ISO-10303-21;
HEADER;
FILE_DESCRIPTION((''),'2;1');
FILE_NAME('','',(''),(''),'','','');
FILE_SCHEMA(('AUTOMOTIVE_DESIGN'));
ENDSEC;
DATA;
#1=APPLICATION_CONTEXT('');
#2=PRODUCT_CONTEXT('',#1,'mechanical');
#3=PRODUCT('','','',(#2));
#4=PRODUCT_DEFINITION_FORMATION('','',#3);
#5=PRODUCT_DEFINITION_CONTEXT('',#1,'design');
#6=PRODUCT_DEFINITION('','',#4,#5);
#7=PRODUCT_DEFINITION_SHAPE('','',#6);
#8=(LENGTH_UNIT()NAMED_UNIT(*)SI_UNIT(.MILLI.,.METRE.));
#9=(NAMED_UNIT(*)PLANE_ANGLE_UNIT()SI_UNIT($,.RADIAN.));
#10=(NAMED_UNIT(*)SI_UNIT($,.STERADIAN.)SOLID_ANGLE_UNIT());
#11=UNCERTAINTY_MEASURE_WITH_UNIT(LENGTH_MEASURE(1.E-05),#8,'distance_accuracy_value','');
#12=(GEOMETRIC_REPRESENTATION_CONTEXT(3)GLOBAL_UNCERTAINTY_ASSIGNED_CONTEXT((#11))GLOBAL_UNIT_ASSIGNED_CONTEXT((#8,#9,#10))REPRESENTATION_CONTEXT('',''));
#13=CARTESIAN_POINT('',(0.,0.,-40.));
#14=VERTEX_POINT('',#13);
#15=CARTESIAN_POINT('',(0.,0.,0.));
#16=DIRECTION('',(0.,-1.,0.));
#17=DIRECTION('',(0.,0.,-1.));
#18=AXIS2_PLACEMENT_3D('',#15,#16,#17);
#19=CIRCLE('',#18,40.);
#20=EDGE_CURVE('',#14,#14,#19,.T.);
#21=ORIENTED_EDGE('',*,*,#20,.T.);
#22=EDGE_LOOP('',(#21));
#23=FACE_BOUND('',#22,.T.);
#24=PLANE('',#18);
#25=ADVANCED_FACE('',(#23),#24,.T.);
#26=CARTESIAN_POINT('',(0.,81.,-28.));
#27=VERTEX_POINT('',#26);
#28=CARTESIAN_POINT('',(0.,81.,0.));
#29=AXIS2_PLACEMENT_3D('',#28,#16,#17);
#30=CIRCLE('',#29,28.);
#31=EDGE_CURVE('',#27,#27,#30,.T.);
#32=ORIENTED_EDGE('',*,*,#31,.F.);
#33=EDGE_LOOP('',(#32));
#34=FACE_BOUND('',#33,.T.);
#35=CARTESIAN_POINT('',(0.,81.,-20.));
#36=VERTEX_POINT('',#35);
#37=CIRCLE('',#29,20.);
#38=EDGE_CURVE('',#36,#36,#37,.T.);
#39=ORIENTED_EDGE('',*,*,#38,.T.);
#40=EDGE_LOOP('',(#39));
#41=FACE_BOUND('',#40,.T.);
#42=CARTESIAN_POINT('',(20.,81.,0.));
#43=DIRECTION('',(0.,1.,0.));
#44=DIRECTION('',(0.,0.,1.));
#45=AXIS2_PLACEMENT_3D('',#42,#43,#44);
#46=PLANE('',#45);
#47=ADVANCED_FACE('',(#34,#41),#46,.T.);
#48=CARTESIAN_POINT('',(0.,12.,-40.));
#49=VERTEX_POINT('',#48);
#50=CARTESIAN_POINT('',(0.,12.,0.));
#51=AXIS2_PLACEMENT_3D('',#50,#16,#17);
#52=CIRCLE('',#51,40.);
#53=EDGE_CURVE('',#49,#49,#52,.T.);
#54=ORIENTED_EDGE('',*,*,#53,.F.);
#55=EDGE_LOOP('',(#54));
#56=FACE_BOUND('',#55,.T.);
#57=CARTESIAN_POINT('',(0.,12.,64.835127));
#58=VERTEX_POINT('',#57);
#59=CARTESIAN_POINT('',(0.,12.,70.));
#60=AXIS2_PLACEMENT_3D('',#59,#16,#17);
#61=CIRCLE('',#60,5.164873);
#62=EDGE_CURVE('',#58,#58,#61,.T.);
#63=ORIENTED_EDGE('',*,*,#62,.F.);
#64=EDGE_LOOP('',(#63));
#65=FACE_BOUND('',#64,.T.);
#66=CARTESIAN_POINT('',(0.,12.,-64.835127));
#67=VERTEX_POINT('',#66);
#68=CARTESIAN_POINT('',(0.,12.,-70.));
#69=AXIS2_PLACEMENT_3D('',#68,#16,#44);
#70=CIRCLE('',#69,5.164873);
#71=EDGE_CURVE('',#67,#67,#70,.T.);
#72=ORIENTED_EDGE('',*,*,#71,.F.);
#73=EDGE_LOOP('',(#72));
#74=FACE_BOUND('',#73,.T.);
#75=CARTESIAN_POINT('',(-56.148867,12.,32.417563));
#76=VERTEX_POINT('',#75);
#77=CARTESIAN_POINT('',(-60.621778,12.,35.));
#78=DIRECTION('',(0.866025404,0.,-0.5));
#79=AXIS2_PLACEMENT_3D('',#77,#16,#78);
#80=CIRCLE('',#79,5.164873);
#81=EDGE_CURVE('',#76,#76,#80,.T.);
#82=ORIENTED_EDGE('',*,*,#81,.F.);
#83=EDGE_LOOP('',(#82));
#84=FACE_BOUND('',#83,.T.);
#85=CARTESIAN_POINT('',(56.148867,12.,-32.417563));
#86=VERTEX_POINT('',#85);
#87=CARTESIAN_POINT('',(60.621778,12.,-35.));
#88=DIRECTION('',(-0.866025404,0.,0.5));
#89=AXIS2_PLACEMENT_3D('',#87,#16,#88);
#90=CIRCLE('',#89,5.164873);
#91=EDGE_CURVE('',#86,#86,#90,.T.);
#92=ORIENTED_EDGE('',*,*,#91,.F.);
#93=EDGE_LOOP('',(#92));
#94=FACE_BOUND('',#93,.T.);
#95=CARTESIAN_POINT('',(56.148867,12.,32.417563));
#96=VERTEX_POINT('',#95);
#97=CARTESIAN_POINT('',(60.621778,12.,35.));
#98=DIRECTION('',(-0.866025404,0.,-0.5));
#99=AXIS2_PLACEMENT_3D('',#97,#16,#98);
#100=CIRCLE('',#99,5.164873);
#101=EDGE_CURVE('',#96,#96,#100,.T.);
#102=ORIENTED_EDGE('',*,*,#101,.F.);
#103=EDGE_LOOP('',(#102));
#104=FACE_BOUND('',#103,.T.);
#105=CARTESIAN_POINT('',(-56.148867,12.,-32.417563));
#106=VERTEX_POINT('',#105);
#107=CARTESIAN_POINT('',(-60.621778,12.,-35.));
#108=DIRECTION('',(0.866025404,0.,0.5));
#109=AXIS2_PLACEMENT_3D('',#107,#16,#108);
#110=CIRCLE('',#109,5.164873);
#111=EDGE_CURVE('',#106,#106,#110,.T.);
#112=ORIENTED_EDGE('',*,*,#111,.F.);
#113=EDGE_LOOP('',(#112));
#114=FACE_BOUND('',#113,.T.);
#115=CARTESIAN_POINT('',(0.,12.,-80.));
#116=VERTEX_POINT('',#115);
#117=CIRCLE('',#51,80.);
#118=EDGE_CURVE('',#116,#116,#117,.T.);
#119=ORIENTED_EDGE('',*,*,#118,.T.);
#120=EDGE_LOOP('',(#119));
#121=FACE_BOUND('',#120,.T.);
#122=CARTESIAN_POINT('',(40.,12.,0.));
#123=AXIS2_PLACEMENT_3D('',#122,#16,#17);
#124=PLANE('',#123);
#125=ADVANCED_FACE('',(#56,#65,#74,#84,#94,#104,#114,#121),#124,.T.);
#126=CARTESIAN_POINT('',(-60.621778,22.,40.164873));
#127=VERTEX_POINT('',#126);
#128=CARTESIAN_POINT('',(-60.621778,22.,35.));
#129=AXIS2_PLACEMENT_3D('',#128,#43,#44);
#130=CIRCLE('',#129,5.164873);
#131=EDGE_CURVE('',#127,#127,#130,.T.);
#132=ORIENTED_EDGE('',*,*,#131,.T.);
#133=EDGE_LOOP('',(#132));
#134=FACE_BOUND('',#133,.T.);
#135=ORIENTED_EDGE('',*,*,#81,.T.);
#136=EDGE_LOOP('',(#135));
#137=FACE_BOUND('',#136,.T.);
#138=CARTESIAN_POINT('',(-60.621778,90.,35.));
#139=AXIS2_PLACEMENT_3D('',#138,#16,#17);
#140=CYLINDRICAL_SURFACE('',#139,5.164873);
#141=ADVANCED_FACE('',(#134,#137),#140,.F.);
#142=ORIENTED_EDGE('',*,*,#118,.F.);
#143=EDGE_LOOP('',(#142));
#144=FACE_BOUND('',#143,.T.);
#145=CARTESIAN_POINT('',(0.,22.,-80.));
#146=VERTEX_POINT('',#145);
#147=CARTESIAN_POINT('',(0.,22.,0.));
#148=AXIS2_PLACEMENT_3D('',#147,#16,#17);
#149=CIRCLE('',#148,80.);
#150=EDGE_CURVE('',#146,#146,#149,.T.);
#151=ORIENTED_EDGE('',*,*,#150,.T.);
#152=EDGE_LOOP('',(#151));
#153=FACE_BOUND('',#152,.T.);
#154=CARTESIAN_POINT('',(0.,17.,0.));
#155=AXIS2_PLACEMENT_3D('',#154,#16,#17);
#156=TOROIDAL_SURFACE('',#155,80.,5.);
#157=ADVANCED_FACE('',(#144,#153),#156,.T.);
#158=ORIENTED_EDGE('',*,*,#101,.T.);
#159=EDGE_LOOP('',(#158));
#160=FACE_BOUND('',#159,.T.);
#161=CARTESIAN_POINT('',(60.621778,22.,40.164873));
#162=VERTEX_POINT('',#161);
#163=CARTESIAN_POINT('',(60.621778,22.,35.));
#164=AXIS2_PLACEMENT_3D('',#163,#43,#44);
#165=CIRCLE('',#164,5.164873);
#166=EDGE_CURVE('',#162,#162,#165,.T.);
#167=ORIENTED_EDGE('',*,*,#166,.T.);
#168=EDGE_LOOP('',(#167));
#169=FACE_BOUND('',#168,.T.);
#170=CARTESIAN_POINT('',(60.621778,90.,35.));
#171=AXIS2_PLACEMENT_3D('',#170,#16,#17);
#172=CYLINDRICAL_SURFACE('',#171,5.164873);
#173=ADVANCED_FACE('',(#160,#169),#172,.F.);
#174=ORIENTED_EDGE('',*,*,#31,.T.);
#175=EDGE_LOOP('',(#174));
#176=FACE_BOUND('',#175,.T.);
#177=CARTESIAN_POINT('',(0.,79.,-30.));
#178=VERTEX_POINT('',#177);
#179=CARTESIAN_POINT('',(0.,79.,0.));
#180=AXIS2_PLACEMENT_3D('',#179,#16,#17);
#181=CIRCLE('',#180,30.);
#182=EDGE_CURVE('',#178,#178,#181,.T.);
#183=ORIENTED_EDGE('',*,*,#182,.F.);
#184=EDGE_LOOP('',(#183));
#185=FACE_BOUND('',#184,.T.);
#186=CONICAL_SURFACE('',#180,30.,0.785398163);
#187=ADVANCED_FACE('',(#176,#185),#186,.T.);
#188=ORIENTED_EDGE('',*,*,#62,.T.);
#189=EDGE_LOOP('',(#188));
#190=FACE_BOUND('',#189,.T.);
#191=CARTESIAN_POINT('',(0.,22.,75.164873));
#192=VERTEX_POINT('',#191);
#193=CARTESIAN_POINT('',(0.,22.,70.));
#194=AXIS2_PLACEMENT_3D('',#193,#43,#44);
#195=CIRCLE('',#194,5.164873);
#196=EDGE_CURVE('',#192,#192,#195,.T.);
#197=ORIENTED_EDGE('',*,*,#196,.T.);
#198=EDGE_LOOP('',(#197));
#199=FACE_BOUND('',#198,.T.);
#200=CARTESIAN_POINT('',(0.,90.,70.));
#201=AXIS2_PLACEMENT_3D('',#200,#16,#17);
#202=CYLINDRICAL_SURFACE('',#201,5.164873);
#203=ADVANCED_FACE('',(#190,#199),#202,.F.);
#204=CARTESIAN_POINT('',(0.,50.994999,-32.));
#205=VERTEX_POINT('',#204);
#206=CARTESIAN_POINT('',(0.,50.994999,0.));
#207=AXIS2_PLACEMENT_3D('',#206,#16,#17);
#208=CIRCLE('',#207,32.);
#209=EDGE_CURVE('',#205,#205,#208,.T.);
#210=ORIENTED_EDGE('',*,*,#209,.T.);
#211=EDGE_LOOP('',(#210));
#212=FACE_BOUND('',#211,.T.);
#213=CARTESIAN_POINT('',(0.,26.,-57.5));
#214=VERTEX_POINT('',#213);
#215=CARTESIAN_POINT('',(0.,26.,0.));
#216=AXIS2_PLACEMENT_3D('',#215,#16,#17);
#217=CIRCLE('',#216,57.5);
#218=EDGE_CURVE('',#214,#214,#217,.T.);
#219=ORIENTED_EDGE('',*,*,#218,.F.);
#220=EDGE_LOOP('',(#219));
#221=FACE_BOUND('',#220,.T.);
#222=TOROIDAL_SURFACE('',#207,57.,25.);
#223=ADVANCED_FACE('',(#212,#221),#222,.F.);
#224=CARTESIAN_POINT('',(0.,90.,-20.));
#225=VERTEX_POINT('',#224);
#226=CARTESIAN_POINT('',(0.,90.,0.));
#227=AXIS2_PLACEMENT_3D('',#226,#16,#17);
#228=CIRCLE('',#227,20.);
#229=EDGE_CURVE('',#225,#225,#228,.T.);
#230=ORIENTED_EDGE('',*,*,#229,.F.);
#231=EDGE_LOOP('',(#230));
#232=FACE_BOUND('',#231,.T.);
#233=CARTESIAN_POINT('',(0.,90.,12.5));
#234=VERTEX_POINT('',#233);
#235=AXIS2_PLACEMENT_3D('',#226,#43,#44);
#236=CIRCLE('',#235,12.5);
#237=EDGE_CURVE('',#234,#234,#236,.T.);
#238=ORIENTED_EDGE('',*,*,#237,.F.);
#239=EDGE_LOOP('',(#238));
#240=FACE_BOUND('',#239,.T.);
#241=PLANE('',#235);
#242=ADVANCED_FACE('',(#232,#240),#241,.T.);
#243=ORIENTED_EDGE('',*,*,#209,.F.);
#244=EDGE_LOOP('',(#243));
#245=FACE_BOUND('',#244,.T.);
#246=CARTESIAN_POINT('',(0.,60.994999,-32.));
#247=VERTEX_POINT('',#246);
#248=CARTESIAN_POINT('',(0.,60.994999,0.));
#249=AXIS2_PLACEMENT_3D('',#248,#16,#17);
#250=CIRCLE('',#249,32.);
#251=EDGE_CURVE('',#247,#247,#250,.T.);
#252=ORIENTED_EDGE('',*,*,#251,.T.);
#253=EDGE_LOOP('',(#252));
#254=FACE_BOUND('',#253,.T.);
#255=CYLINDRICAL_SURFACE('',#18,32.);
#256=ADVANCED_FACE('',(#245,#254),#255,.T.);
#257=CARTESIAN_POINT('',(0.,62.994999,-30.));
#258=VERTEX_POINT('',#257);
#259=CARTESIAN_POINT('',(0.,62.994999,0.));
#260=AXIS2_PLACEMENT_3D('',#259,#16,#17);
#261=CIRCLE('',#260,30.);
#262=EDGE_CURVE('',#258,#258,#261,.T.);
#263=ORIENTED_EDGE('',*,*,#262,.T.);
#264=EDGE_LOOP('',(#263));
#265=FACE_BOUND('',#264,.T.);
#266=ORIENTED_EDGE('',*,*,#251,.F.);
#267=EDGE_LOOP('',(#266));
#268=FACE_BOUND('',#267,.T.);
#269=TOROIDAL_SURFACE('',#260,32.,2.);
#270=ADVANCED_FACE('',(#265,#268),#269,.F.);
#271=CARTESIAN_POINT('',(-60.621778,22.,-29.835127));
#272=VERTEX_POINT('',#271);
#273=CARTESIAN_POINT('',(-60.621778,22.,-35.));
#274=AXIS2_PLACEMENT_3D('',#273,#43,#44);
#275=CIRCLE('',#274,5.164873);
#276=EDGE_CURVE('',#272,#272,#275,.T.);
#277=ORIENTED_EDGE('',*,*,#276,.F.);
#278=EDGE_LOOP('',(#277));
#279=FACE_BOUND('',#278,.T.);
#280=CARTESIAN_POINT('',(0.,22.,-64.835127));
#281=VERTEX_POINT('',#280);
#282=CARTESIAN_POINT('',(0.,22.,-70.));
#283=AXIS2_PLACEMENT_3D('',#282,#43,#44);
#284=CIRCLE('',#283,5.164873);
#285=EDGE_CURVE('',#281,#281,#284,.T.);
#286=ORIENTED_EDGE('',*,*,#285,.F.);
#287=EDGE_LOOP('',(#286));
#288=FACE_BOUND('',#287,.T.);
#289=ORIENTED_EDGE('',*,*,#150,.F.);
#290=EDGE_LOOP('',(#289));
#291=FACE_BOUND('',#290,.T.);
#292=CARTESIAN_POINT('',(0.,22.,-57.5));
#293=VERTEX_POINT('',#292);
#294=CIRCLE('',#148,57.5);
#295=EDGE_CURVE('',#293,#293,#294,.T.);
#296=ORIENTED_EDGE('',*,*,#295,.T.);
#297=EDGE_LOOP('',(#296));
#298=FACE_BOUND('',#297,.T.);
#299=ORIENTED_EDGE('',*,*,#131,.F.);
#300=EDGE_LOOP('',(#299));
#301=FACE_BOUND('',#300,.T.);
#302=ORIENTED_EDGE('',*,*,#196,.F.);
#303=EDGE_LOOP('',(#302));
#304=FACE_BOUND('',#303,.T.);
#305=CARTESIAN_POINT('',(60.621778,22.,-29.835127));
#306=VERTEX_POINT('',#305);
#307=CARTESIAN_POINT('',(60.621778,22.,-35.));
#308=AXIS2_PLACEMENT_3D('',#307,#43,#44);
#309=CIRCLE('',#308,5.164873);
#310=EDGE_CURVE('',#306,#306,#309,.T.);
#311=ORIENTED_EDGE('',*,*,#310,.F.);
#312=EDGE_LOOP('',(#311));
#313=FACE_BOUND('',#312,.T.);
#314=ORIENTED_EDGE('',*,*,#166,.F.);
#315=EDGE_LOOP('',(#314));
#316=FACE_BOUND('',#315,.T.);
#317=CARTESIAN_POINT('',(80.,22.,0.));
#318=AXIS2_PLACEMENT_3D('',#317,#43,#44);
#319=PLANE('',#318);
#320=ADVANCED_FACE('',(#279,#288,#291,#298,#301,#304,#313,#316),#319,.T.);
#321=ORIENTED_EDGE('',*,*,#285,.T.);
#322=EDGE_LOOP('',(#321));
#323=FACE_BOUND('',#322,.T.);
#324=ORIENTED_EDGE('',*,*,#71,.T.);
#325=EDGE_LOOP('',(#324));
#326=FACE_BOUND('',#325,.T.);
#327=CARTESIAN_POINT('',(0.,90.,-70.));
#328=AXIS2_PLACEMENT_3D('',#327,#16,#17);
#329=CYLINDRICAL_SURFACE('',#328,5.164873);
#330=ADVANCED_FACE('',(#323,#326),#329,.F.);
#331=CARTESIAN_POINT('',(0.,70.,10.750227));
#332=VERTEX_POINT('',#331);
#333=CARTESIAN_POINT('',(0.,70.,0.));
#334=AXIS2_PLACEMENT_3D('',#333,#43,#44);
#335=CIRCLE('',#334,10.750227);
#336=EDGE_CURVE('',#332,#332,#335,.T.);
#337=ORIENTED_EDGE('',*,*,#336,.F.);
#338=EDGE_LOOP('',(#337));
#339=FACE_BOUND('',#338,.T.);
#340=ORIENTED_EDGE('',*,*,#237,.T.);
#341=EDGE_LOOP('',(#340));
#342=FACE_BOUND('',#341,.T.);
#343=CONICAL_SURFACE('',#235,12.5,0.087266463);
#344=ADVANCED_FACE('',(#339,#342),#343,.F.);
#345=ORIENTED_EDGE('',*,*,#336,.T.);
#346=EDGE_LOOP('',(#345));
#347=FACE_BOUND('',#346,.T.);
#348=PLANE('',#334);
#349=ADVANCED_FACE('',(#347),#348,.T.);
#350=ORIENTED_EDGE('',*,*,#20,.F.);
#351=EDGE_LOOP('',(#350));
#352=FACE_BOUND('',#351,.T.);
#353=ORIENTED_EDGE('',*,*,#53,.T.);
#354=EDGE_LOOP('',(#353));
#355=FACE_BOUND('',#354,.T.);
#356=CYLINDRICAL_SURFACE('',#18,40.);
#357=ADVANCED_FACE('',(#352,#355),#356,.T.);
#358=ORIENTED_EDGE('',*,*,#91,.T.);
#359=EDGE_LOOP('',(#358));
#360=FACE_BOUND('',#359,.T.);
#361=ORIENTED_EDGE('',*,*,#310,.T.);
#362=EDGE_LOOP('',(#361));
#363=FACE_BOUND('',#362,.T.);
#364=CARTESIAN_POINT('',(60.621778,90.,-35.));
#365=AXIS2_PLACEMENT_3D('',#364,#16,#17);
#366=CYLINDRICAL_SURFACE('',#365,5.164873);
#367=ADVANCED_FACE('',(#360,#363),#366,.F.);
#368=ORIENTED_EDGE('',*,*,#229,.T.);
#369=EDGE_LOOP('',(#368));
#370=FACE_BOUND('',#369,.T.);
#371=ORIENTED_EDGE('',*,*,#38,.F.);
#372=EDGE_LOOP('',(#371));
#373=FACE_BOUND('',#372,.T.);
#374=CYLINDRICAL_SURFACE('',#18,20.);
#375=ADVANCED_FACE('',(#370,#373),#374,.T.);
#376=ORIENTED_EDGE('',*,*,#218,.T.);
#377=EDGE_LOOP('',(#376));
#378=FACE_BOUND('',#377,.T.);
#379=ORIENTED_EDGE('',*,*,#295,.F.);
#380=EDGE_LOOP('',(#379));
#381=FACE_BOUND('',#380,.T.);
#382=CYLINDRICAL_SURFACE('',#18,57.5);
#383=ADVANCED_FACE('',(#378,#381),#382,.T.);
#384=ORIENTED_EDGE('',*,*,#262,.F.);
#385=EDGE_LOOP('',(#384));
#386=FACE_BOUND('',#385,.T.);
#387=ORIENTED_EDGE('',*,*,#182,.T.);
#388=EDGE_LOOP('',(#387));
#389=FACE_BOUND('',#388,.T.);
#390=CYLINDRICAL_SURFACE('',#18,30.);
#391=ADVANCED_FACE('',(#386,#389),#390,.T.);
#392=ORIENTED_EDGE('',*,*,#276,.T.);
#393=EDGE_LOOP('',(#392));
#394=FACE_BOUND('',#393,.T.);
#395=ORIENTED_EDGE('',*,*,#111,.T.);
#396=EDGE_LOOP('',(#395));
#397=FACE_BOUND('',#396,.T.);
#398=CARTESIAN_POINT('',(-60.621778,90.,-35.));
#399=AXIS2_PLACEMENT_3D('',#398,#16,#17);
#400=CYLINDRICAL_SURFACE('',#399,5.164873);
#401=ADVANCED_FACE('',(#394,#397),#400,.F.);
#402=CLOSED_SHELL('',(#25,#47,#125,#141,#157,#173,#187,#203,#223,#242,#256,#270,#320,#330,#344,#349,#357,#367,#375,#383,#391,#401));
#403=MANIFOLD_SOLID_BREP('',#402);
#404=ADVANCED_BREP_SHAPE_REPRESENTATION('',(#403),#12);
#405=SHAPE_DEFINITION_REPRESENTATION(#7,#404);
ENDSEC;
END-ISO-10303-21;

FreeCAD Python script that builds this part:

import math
import FreeCAD as App
import Part
import Sketcher
from FreeCAD import Vector
Q = App.Units.Quantity

doc = App.newDocument("Part")
params = doc.addObject("Spreadsheet::Sheet", "Params")
for row, (alias, value) in enumerate([
    ("sketch1_radius", "5 mm"),
    ("sketch1_radius2", "25 mm"),
    ("sketch1_radius3", "2 mm"),
    ("sketch1_width", "40 mm"),
    ("sketch1_width2", "8 mm"),
    ("revolution_angle", "360 deg"),
    ("sketch2_diameter", "25 mm"),
    ("pocket1_length", "20 mm"),
    ("pocket1_taper", "-5 deg"),
], start=1):
    params.set(f"A{row}", alias)
    params.set(f"B{row}", "=" + value)
    params.setAlias(f"B{row}", alias)

body = doc.addObject("PartDesign::Body", "Body")

sketch1 = body.newObject("Sketcher::SketchObject", "Sketch")
sketch1.AttachmentSupport = (doc.getObject("XY_Plane"), [""])
sketch1.MapMode = "FlatFace"
sketch1.addGeometry(Part.LineSegment(Vector(0, 90, 0), Vector(0, 0, 0)), False)
sketch1.addGeometry(Part.LineSegment(Vector(0, 0, 0), Vector(40, 0, 0)), False)
sketch1.addGeometry(Part.LineSegment(Vector(40, 0, 0), Vector(40, 12, 0)), False)
sketch1.addGeometry(Part.LineSegment(Vector(40, 12, 0), Vector(80, 12, 0)), False)
sketch1.addGeometry(Part.ArcOfCircle(Part.Circle(Vector(80, 17, 0), Vector(0, 0, 1), 5), math.radians(-90), math.radians(90)), False)
sketch1.addGeometry(Part.LineSegment(Vector(80, 22, 0), Vector(57.5, 22, 0)), False)
sketch1.addGeometry(Part.LineSegment(Vector(57.5, 22, 0), Vector(57.5, 26, 0)), False)
sketch1.addGeometry(Part.ArcOfCircle(Part.Circle(Vector(57, 51, 0), Vector(0, 0, 1), 25), math.radians(-180), math.radians(-89)), False)
sketch1.addGeometry(Part.LineSegment(Vector(32, 51, 0), Vector(32, 61, 0)), False)
sketch1.addGeometry(Part.ArcOfCircle(Part.Circle(Vector(32, 63, 0), Vector(0, 0, 1), 2), math.radians(-180), math.radians(-90)), False)
sketch1.addGeometry(Part.LineSegment(Vector(30, 63, 0), Vector(30, 79, 0)), False)
sketch1.addGeometry(Part.LineSegment(Vector(30, 79, 0), Vector(28, 81, 0)), False)
sketch1.addGeometry(Part.LineSegment(Vector(28, 81, 0), Vector(20, 81, 0)), False)
sketch1.addGeometry(Part.LineSegment(Vector(20, 81, 0), Vector(20, 90, 0)), False)
sketch1.addGeometry(Part.LineSegment(Vector(20, 90, 0), Vector(0, 90, 0)), False)
sketch1.addConstraint(Sketcher.Constraint("Coincident", 0, 2, 1, 1))
sketch1.addConstraint(Sketcher.Constraint("Coincident", 1, 2, 2, 1))
sketch1.addConstraint(Sketcher.Constraint("Coincident", 2, 2, 3, 1))
sketch1.addConstraint(Sketcher.Constraint("Tangent", 3, 2, 4, 1))
sketch1.addConstraint(Sketcher.Constraint("Tangent", 4, 2, 5, 1))
sketch1.addConstraint(Sketcher.Constraint("Coincident", 5, 2, 6, 1))
sketch1.addConstraint(Sketcher.Constraint("Coincident", 6, 2, 7, 2))
sketch1.addConstraint(Sketcher.Constraint("Tangent", 7, 1, 8, 1))
sketch1.addConstraint(Sketcher.Constraint("Coincident", 8, 2, 9, 2))
sketch1.addConstraint(Sketcher.Constraint("Tangent", 9, 1, 10, 1))
sketch1.addConstraint(Sketcher.Constraint("Coincident", 10, 2, 11, 1))
sketch1.addConstraint(Sketcher.Constraint("Coincident", 11, 2, 12, 1))
sketch1.addConstraint(Sketcher.Constraint("Coincident", 12, 2, 13, 1))
sketch1.addConstraint(Sketcher.Constraint("Coincident", 13, 2, 14, 1))
sketch1.addConstraint(Sketcher.Constraint("Coincident", 14, 2, 0, 1))
sketch1.addConstraint(Sketcher.Constraint("Vertical", 0))
sketch1.addConstraint(Sketcher.Constraint("Horizontal", 1))
sketch1.addConstraint(Sketcher.Constraint("Vertical", 2))
sketch1.addConstraint(Sketcher.Constraint("Horizontal", 3))
sketch1.addConstraint(Sketcher.Constraint("Horizontal", 5))
sketch1.addConstraint(Sketcher.Constraint("Vertical", 6))
sketch1.addConstraint(Sketcher.Constraint("Vertical", 8))
sketch1.addConstraint(Sketcher.Constraint("Vertical", 10))
sketch1.addConstraint(Sketcher.Constraint("Horizontal", 12))
sketch1.addConstraint(Sketcher.Constraint("Vertical", 13))
sketch1.addConstraint(Sketcher.Constraint("Horizontal", 14))
sketch1.addConstraint(Sketcher.Constraint("Coincident", 0, 2, -1, 1))
sketch1.addConstraint(Sketcher.Constraint("Vertical", 9, 3, 7, 1))
sketch1.addConstraint(Sketcher.Constraint("Equal", 1, 3))
sketch1.addConstraint(Sketcher.Constraint("Radius", 4, 5.0))
sketch1.addConstraint(Sketcher.Constraint("Radius", 7, 25.0))
sketch1.addConstraint(Sketcher.Constraint("Radius", 9, 2.0))
sketch1.addConstraint(Sketcher.Constraint("DistanceX", 1, 1, 1, 2, 40.0))
sketch1.addConstraint(Sketcher.Constraint("DistanceX", 12, 2, 12, 1, 8.0))
sketch1.addConstraint(Sketcher.Constraint("DistanceX", 14, 2, 14, 1, 20.0))
sketch1.addConstraint(Sketcher.Constraint("DistanceY", 0, 2, 0, 1, 90.0))
sketch1.addConstraint(Sketcher.Constraint("DistanceY", 2, 1, 2, 2, 12.0))
sketch1.addConstraint(Sketcher.Constraint("DistanceY", 6, 1, 6, 2, 4.0))
sketch1.addConstraint(Sketcher.Constraint("DistanceY", 8, 1, 8, 2, 10.0))
sketch1.addConstraint(Sketcher.Constraint("DistanceY", 13, 1, 13, 2, 9.0))
sketch1.addConstraint(Sketcher.Constraint("Angle", 11, Q("135 deg")))
sketch1.addConstraint(Sketcher.Constraint("DistanceX", 5, 2, 5, 1, 22.5))
sketch1.addConstraint(Sketcher.Constraint("DistanceX", -1, 1, 7, 3, 57.0))
sketch1.setExpression("Constraints[29]", "Params.sketch1_radius")
sketch1.setExpression("Constraints[30]", "Params.sketch1_radius2")
sketch1.setExpression("Constraints[31]", "Params.sketch1_radius3")
sketch1.setExpression("Constraints[32]", "Params.sketch1_width")
sketch1.setExpression("Constraints[33]", "Params.sketch1_width2")
revolution = body.newObject("PartDesign::Revolution", "Revolution")
revolution.Profile = sketch1
revolution.ReferenceAxis = (sketch1, ["V_Axis"])
revolution.setExpression("Angle", "Params.revolution_angle")

sketch2 = body.newObject("Sketcher::SketchObject", "Sketch001")
sketch2.AttachmentSupport = (doc.getObject("XZ_Plane"), [""])
sketch2.MapMode = "FlatFace"
sketch2.AttachmentOffset = App.Placement(Vector(0, 0, -90), App.Rotation())
sketch2.addGeometry(Part.Circle(Vector(0, 0, 0), Vector(0, 0, 1), 12), False)
sketch2.addConstraint(Sketcher.Constraint("Coincident", 0, 3, -1, 1))
sketch2.addConstraint(Sketcher.Constraint("Diameter", 0, 25.0))
sketch2.setExpression("Constraints[1]", "Params.sketch2_diameter")
pocket1 = body.newObject("PartDesign::Pocket", "Pocket")
pocket1.Profile = sketch2
pocket1.setExpression("Length", "Params.pocket1_length")
pocket1.Reversed = True
pocket1.setExpression("TaperAngle", "Params.pocket1_taper")

sketch3 = body.newObject("Sketcher::SketchObject", "Sketch002")
sketch3.AttachmentSupport = (doc.getObject("XZ_Plane"), [""])
sketch3.MapMode = "FlatFace"
sketch3.AttachmentOffset = App.Placement(Vector(0, 0, -12), App.Rotation())
sketch3.addGeometry(Part.Circle(Vector(0, 70, 0), Vector(0, 0, 1), 5), False)
sketch3.addConstraint(Sketcher.Constraint("PointOnObject", 0, 3, -2))
sketch3.addConstraint(Sketcher.Constraint("DistanceY", -1, 1, 0, 3, 70.0))
sketch3.addConstraint(Sketcher.Constraint("Diameter", 0, 10.329746))
pocket2 = body.newObject("PartDesign::Pocket", "Pocket001")
pocket2.Profile = sketch3
pocket2.Type = "ThroughAll"
doc.recompute()

polarpattern = body.newObject("PartDesign::PolarPattern", "PolarPattern")
polarpattern.Originals = [pocket2]
polarpattern.Axis = (doc.getObject("Y_Axis"), [""])
polarpattern.Angle = 360
polarpattern.Occurrences = 6
body.Tip = polarpattern

doc.recompute()
